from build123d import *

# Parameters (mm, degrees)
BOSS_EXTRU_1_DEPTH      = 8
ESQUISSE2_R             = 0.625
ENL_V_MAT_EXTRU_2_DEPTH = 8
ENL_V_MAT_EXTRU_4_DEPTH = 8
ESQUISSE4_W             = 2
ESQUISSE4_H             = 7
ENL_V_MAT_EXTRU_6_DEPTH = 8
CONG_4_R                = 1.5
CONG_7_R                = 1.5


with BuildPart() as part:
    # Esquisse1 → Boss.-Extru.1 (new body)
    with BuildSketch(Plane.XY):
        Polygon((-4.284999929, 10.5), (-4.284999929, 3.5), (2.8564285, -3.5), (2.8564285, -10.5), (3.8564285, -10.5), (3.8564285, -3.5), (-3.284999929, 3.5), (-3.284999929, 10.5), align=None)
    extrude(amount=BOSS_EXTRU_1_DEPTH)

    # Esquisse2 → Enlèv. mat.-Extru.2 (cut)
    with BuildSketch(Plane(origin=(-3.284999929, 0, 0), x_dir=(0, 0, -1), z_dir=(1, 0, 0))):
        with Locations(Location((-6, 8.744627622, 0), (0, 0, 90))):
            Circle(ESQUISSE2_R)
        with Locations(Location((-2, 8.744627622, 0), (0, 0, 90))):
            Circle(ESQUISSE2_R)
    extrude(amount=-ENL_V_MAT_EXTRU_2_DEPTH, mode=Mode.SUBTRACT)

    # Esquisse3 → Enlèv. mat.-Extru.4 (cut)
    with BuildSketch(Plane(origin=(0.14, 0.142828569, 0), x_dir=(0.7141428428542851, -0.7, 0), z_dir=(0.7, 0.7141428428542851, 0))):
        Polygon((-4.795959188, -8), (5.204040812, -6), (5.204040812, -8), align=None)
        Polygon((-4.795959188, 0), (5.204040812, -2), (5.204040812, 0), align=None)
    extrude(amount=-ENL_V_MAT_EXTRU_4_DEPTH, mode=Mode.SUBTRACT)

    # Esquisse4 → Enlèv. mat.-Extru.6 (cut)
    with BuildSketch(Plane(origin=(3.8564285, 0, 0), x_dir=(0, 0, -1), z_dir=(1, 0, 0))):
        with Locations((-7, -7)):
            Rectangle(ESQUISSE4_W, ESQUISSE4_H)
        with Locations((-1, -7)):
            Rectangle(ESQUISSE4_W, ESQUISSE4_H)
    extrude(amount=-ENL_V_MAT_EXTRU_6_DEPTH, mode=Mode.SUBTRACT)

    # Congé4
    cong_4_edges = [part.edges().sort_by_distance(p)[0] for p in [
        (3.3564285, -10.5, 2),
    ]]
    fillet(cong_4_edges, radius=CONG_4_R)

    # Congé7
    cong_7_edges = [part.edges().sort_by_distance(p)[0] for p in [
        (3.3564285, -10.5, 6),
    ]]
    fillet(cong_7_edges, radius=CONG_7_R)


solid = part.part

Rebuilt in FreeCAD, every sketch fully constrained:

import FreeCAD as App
import Part
import Sketcher

V = App.Vector
Q = App.Units.Quantity


def edges_at(feature, points):
    """Names of the edges that pass closest to the given points."""
    edges = feature.Shape.Edges
    near = lambda p: min(range(len(edges)), key=lambda i: edges[i].distToShape(Part.Vertex(*p))[0])
    return sorted({f"Edge{near(p) + 1}" for p in points})


def add_polygon(sketch, points):
    """Adds a closed chain of lines whose ends are joined by coincident constraints."""
    first, n = sketch.GeometryCount, len(points)
    for a, b in zip(points, points[1:] + points[:1]):
        sketch.addGeometry(Part.LineSegment(App.Vector(*a, 0), App.Vector(*b, 0)), False)
    for i in range(n):
        sketch.addConstraint(Sketcher.Constraint("Coincident", first + i, 2, first + (i + 1) % n, 1))

doc = App.newDocument("Part")
body = doc.addObject("PartDesign::Body", "Body")

# Sketch on XY plane
sketch1 = body.newObject("Sketcher::SketchObject", "Sketch")
sketch1.AttachmentSupport = (doc.getObject("XY_Plane"), [""])
sketch1.MapMode = "FlatFace"
add_polygon(sketch1, [(-4.3, 10.5), (-4.3, 3.5), (2.9, -3.5), (2.9, -10.5), (3.9, -10.5), (3.9, -3.5), (-3.3, 3.5), (-3.3, 10.5)])  # lines 0-7
sketch1.addConstraint([
    Sketcher.Constraint("Vertical", 0),
    Sketcher.Constraint("Vertical", 2),
    Sketcher.Constraint("Horizontal", 3),
    Sketcher.Constraint("Vertical", 4),
    Sketcher.Constraint("Vertical", 6),
    Sketcher.Constraint("Horizontal", 7),
    Sketcher.Constraint("Parallel", 1, 5),
    Sketcher.Constraint("Horizontal", 1, 2, 4, 2),
    Sketcher.Constraint("Horizontal", 0, 2, 5, 2),
    Sketcher.Constraint("Equal", 0, 2),
    Sketcher.Constraint("DistanceX", 3, 1, 3, 2, Q("1 mm")),
    Sketcher.Constraint("DistanceY", 0, 2, 0, 1, Q("7 mm")),
    Sketcher.Constraint("Distance", 1, Q("10 mm")),
    Sketcher.Constraint("DistanceY", 1, 2, 0, 2, Q("7 mm")),
    Sketcher.Constraint("DistanceY", -1, 1, 0, 2, Q("3.5 mm")),
    Sketcher.Constraint("DistanceX", 0, 2, -1, 1, Q("4.285 mm")),
])
pad1 = body.newObject("PartDesign::Pad", "Pad")
pad1.Profile = sketch1
pad1.Length = 8

# Sketch on YZ plane
sketch2 = body.newObject("Sketcher::SketchObject", "Sketch001")
sketch2.AttachmentSupport = (doc.getObject("YZ_Plane"), [""])
sketch2.MapMode = "FlatFace"
sketch2.AttachmentOffset = App.Placement(V(0, 0, -3.285), App.Rotation())
sketch2.addGeometry([
    Part.Circle(V(8.7, 6, 0), V(0, 0, 1), 0.6),
    Part.Circle(V(8.7, 2, 0), V(0, 0, 1), 0.6),
], False)
sketch2.addConstraint([
    Sketcher.Constraint("Equal", 0, 1),
    Sketcher.Constraint("Vertical", 0, 3, 1, 3),
    Sketcher.Constraint("Diameter", 0, Q("1.25 mm")),
    Sketcher.Constraint("DistanceY", -1, 1, 0, 3, Q("6 mm")),
    Sketcher.Constraint("DistanceY", -1, 1, 1, 3, Q("2 mm")),
    Sketcher.Constraint("DistanceX", -1, 1, 0, 3, Q("8.744628 mm")),
])
pocket1 = body.newObject("PartDesign::Pocket", "Pocket")
pocket1.Profile = sketch2
pocket1.Length = 8

# Sketch on an angled plane
sketch3 = body.newObject("Sketcher::SketchObject", "Sketch002")
sketch3.Placement = App.Placement(V(0.14, 0.142829, 0), App.Rotation(V(0.714142843, -0.7, 0), V(0, 0, -1), V(0.7, 0.714142843, 0), "ZXY"))
add_polygon(sketch3, [(5.2, -6), (-4.8, -8), (5.2, -8)])  # lines 0-2
add_polygon(sketch3, [(-4.8, 0), (5.2, -2), (5.2, 0)])  # lines 3-5
sketch3.addConstraint([
    Sketcher.Constraint("Horizontal", 1),
    Sketcher.Constraint("Vertical", 2),
    Sketcher.Constraint("Vertical", 4),
    Sketcher.Constraint("Horizontal", 5),
    Sketcher.Constraint("PointOnObject", 4, 2, -1),
    Sketcher.Constraint("Vertical", 2, 2, 3, 2),
    Sketcher.Constraint("Vertical", 0, 2, 5, 2),
    Sketcher.Constraint("Equal", 2, 4),
    Sketcher.Constraint("DistanceX", 1, 1, 1, 2, Q("10 mm")),
    Sketcher.Constraint("DistanceY", 2, 1, 2, 2, Q("2 mm")),
    Sketcher.Constraint("DistanceY", 0, 2, -1, 1, Q("8 mm")),
    Sketcher.Constraint("DistanceX", 0, 2, -1, 1, Q("4.795959 mm")),
])
pocket2 = body.newObject("PartDesign::Pocket", "Pocket001")
pocket2.Profile = sketch3
pocket2.Length = 8

# Sketch on YZ plane
sketch4 = body.newObject("Sketcher::SketchObject", "Sketch003")
sketch4.AttachmentSupport = (doc.getObject("YZ_Plane"), [""])
sketch4.MapMode = "FlatFace"
sketch4.AttachmentOffset = App.Placement(V(0, 0, 3.856428), App.Rotation())
add_polygon(sketch4, [(-3.5, 8), (-10.5, 8), (-10.5, 6), (-3.5, 6)])  # lines 0-3
add_polygon(sketch4, [(-3.5, 2), (-10.5, 2), (-10.5, 0), (-3.5, 0)])  # lines 4-7
sketch4.addConstraint([
    Sketcher.Constraint("Horizontal", 0),
    Sketcher.Constraint("Vertical", 1),
    Sketcher.Constraint("Horizontal", 2),
    Sketcher.Constraint("Vertical", 3),
    Sketcher.Constraint("Horizontal", 4),
    Sketcher.Constraint("Vertical", 5),
    Sketcher.Constraint("Horizontal", 6),
    Sketcher.Constraint("Vertical", 7),
    Sketcher.Constraint("PointOnObject", 5, 2, -1),
    Sketcher.Constraint("Vertical", 1, 2, 4, 2),
    Sketcher.Constraint("Vertical", 3, 2, 6, 2),
    Sketcher.Constraint("Equal", 3, 5),
    Sketcher.Constraint("DistanceX", 0, 2, 0, 1, Q("7 mm")),
    Sketcher.Constraint("DistanceY", 1, 2, 1, 1, Q("2 mm")),
    Sketcher.Constraint("DistanceY", -1, 1, 0, 2, Q("8 mm")),
    Sketcher.Constraint("DistanceX", 0, 2, -1, 1, Q("10.5 mm")),
])
pocket3 = body.newObject("PartDesign::Pocket", "Pocket002")
pocket3.Profile = sketch4
pocket3.Length = 8
doc.recompute()

fillet = body.newObject("PartDesign::Fillet", "Fillet")
fillet.Base = (pocket3, edges_at(pocket3, [(3.356, -10.5, 2)]))
fillet.Radius = 1.5
doc.recompute()

fillet2 = body.newObject("PartDesign::Fillet", "Fillet001")
fillet2.Base = (fillet, edges_at(fillet, [(3.356, -10.5, 6)]))
fillet2.Radius = 1.5

doc.recompute()
